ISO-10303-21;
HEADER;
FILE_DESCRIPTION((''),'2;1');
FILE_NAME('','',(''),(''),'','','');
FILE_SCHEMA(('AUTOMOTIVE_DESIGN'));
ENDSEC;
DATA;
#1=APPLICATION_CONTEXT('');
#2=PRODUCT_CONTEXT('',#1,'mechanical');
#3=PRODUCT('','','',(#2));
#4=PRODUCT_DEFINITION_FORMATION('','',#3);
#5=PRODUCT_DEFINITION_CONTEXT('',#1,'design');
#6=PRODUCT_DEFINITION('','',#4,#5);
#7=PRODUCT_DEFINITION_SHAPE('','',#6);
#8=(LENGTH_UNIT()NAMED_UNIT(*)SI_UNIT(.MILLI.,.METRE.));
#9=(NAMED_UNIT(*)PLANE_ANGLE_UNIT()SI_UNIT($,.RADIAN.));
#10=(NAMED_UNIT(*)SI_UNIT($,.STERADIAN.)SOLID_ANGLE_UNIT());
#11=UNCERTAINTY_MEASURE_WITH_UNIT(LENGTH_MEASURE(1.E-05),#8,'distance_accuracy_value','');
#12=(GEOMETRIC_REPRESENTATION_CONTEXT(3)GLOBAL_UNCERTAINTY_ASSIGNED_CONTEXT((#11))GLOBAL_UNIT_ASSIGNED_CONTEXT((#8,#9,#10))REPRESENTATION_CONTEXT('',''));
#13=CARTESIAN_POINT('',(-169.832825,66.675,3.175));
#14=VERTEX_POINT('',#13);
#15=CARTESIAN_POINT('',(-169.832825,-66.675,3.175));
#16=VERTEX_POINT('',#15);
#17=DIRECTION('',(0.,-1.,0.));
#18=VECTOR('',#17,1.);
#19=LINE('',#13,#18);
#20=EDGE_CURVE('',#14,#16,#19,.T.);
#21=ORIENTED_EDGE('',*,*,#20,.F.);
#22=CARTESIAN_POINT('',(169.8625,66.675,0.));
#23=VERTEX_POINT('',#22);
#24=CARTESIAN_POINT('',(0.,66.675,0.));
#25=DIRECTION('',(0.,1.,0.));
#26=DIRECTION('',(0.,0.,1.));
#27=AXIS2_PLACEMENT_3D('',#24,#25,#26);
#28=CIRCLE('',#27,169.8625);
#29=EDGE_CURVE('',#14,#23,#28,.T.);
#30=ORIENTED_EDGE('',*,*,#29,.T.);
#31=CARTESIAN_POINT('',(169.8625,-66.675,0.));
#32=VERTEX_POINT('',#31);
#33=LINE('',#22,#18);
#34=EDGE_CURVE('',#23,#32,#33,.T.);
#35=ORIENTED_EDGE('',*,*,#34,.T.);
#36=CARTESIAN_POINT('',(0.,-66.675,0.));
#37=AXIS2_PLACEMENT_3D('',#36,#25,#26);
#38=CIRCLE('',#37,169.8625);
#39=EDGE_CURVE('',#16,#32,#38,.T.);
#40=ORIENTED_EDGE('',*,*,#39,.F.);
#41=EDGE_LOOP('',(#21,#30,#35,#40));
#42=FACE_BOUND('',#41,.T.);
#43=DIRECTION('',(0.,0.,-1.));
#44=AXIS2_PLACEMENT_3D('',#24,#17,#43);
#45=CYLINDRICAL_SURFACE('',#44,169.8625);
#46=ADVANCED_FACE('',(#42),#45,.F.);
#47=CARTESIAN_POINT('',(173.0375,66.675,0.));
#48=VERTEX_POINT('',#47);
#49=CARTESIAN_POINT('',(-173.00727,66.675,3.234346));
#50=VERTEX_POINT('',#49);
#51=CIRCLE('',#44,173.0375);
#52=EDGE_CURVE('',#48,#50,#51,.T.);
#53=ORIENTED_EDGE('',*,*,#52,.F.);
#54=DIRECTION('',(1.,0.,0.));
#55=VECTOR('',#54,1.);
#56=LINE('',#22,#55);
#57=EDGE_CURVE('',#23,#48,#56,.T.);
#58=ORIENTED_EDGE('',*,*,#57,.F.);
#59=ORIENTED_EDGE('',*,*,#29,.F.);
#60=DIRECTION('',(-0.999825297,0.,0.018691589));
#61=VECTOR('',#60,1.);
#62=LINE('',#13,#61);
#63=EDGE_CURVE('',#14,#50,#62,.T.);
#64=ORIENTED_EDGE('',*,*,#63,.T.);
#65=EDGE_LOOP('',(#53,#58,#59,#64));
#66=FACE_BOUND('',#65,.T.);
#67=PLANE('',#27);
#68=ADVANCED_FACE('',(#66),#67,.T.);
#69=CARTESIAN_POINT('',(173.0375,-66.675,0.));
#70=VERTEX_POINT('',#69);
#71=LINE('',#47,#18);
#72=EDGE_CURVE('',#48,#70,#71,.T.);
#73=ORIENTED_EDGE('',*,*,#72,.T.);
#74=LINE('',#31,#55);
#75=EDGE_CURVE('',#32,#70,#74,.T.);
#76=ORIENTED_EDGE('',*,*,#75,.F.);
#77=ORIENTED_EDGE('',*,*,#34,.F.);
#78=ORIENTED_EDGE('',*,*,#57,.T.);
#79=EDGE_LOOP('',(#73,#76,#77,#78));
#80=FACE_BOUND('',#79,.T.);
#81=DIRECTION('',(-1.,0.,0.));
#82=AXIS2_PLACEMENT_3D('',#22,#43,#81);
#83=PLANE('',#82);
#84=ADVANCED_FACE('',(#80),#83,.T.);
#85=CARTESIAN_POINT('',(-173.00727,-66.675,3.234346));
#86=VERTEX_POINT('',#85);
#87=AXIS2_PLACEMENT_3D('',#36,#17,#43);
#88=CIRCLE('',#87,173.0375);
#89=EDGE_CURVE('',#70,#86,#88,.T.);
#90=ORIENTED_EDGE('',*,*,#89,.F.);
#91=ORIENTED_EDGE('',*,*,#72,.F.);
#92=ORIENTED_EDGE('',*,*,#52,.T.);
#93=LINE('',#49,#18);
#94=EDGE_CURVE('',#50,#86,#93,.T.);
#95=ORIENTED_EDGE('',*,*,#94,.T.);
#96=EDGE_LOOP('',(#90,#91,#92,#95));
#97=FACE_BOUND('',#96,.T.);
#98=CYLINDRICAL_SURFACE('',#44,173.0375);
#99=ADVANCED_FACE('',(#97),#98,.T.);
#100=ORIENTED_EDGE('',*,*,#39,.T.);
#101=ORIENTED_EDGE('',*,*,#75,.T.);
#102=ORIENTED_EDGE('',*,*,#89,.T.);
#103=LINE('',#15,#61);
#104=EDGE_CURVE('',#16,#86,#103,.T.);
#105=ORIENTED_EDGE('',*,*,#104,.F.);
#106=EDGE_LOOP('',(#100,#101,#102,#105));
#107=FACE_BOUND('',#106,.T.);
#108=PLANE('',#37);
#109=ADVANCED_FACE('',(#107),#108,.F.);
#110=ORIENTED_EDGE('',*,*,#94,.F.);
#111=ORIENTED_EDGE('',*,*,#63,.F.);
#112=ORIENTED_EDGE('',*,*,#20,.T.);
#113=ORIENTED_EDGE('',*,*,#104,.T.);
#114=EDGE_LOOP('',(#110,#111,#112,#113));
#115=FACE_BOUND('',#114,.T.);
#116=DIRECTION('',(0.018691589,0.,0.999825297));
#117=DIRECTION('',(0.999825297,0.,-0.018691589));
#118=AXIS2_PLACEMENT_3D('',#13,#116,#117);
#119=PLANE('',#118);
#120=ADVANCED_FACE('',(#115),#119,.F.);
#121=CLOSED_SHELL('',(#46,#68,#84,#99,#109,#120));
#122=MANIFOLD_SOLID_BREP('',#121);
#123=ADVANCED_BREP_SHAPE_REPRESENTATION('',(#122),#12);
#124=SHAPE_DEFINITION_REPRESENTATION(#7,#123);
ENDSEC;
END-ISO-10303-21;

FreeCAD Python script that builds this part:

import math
import FreeCAD as App
import Part
import Sketcher
from FreeCAD import Vector
Q = App.Units.Quantity

doc = App.newDocument("Part")
params = doc.addObject("Spreadsheet::Sheet", "Params")
for row, (alias, value) in enumerate([
    ("sketch1_radius", "6.6875 in"),
    ("sketch1_radius2", "6.8125 in"),
    ("pad1_length", "5.25 in"),
], start=1):
    params.set(f"A{row}", alias)
    params.set(f"B{row}", "=" + value)
    params.setAlias(f"B{row}", alias)

body = doc.addObject("PartDesign::Body", "Body")

# Sketch on XZ plane
sketch1 = doc.addObject("Sketcher::SketchObject", "Sketch")
body.addObject(sketch1)
sketch1.AttachmentSupport = (doc.XZ_Plane, [""])
sketch1.MapMode = "FlatFace"
sketch1.addGeometry(Part.LineSegment(Vector(173, 0, 0), Vector(169.9, 0, 0)), False)
sketch1.addGeometry(Part.ArcOfCircle(Part.Circle(Vector(0, 0, 0), Vector(0, 0, 1), 169.9), math.radians(0), math.radians(179)), False)
sketch1.addGeometry(Part.LineSegment(Vector(-169.8, 3.2, 0), Vector(-173, 3.2, 0)), False)
sketch1.addGeometry(Part.ArcOfCircle(Part.Circle(Vector(0, 0, 0), Vector(0, 0, 1), 173), math.radians(0), math.radians(179)), False)
sketch1.addConstraint(Sketcher.Constraint("Coincident", 0, 2, 1, 1))
sketch1.addConstraint(Sketcher.Constraint("Coincident", 1, 2, 2, 1))
sketch1.addConstraint(Sketcher.Constraint("Coincident", 2, 2, 3, 2))
sketch1.addConstraint(Sketcher.Constraint("Coincident", 3, 1, 0, 1))
sketch1.addConstraint(Sketcher.Constraint("Horizontal", 0))
sketch1.addConstraint(Sketcher.Constraint("Coincident", 1, 3, -1, 1))
sketch1.addConstraint(Sketcher.Constraint("Coincident", 3, 3, -1, 1))
sketch1.addConstraint(Sketcher.Constraint("PointOnObject", 0, 2, -1))
sketch1.addConstraint(Sketcher.Constraint("Radius", 1, Q("6.6875 in")))
sketch1.addConstraint(Sketcher.Constraint("Radius", 3, Q("6.8125 in")))
sketch1.addConstraint(Sketcher.Constraint("DistanceY", -1, 1, 1, 2, Q("0.125 in")))
sketch1.addConstraint(Sketcher.Constraint("DistanceX", 2, 2, -1, 1, 173.00727))
sketch1.setExpression("Constraints[8]", "Params.sketch1_radius")
sketch1.setExpression("Constraints[9]", "Params.sketch1_radius2")
pad1 = doc.addObject("PartDesign::Pad", "Pad")
body.addObject(pad1)
pad1.Profile = sketch1
pad1.setExpression("Length", "Params.pad1_length")
pad1.Midplane = True

doc.recompute()
